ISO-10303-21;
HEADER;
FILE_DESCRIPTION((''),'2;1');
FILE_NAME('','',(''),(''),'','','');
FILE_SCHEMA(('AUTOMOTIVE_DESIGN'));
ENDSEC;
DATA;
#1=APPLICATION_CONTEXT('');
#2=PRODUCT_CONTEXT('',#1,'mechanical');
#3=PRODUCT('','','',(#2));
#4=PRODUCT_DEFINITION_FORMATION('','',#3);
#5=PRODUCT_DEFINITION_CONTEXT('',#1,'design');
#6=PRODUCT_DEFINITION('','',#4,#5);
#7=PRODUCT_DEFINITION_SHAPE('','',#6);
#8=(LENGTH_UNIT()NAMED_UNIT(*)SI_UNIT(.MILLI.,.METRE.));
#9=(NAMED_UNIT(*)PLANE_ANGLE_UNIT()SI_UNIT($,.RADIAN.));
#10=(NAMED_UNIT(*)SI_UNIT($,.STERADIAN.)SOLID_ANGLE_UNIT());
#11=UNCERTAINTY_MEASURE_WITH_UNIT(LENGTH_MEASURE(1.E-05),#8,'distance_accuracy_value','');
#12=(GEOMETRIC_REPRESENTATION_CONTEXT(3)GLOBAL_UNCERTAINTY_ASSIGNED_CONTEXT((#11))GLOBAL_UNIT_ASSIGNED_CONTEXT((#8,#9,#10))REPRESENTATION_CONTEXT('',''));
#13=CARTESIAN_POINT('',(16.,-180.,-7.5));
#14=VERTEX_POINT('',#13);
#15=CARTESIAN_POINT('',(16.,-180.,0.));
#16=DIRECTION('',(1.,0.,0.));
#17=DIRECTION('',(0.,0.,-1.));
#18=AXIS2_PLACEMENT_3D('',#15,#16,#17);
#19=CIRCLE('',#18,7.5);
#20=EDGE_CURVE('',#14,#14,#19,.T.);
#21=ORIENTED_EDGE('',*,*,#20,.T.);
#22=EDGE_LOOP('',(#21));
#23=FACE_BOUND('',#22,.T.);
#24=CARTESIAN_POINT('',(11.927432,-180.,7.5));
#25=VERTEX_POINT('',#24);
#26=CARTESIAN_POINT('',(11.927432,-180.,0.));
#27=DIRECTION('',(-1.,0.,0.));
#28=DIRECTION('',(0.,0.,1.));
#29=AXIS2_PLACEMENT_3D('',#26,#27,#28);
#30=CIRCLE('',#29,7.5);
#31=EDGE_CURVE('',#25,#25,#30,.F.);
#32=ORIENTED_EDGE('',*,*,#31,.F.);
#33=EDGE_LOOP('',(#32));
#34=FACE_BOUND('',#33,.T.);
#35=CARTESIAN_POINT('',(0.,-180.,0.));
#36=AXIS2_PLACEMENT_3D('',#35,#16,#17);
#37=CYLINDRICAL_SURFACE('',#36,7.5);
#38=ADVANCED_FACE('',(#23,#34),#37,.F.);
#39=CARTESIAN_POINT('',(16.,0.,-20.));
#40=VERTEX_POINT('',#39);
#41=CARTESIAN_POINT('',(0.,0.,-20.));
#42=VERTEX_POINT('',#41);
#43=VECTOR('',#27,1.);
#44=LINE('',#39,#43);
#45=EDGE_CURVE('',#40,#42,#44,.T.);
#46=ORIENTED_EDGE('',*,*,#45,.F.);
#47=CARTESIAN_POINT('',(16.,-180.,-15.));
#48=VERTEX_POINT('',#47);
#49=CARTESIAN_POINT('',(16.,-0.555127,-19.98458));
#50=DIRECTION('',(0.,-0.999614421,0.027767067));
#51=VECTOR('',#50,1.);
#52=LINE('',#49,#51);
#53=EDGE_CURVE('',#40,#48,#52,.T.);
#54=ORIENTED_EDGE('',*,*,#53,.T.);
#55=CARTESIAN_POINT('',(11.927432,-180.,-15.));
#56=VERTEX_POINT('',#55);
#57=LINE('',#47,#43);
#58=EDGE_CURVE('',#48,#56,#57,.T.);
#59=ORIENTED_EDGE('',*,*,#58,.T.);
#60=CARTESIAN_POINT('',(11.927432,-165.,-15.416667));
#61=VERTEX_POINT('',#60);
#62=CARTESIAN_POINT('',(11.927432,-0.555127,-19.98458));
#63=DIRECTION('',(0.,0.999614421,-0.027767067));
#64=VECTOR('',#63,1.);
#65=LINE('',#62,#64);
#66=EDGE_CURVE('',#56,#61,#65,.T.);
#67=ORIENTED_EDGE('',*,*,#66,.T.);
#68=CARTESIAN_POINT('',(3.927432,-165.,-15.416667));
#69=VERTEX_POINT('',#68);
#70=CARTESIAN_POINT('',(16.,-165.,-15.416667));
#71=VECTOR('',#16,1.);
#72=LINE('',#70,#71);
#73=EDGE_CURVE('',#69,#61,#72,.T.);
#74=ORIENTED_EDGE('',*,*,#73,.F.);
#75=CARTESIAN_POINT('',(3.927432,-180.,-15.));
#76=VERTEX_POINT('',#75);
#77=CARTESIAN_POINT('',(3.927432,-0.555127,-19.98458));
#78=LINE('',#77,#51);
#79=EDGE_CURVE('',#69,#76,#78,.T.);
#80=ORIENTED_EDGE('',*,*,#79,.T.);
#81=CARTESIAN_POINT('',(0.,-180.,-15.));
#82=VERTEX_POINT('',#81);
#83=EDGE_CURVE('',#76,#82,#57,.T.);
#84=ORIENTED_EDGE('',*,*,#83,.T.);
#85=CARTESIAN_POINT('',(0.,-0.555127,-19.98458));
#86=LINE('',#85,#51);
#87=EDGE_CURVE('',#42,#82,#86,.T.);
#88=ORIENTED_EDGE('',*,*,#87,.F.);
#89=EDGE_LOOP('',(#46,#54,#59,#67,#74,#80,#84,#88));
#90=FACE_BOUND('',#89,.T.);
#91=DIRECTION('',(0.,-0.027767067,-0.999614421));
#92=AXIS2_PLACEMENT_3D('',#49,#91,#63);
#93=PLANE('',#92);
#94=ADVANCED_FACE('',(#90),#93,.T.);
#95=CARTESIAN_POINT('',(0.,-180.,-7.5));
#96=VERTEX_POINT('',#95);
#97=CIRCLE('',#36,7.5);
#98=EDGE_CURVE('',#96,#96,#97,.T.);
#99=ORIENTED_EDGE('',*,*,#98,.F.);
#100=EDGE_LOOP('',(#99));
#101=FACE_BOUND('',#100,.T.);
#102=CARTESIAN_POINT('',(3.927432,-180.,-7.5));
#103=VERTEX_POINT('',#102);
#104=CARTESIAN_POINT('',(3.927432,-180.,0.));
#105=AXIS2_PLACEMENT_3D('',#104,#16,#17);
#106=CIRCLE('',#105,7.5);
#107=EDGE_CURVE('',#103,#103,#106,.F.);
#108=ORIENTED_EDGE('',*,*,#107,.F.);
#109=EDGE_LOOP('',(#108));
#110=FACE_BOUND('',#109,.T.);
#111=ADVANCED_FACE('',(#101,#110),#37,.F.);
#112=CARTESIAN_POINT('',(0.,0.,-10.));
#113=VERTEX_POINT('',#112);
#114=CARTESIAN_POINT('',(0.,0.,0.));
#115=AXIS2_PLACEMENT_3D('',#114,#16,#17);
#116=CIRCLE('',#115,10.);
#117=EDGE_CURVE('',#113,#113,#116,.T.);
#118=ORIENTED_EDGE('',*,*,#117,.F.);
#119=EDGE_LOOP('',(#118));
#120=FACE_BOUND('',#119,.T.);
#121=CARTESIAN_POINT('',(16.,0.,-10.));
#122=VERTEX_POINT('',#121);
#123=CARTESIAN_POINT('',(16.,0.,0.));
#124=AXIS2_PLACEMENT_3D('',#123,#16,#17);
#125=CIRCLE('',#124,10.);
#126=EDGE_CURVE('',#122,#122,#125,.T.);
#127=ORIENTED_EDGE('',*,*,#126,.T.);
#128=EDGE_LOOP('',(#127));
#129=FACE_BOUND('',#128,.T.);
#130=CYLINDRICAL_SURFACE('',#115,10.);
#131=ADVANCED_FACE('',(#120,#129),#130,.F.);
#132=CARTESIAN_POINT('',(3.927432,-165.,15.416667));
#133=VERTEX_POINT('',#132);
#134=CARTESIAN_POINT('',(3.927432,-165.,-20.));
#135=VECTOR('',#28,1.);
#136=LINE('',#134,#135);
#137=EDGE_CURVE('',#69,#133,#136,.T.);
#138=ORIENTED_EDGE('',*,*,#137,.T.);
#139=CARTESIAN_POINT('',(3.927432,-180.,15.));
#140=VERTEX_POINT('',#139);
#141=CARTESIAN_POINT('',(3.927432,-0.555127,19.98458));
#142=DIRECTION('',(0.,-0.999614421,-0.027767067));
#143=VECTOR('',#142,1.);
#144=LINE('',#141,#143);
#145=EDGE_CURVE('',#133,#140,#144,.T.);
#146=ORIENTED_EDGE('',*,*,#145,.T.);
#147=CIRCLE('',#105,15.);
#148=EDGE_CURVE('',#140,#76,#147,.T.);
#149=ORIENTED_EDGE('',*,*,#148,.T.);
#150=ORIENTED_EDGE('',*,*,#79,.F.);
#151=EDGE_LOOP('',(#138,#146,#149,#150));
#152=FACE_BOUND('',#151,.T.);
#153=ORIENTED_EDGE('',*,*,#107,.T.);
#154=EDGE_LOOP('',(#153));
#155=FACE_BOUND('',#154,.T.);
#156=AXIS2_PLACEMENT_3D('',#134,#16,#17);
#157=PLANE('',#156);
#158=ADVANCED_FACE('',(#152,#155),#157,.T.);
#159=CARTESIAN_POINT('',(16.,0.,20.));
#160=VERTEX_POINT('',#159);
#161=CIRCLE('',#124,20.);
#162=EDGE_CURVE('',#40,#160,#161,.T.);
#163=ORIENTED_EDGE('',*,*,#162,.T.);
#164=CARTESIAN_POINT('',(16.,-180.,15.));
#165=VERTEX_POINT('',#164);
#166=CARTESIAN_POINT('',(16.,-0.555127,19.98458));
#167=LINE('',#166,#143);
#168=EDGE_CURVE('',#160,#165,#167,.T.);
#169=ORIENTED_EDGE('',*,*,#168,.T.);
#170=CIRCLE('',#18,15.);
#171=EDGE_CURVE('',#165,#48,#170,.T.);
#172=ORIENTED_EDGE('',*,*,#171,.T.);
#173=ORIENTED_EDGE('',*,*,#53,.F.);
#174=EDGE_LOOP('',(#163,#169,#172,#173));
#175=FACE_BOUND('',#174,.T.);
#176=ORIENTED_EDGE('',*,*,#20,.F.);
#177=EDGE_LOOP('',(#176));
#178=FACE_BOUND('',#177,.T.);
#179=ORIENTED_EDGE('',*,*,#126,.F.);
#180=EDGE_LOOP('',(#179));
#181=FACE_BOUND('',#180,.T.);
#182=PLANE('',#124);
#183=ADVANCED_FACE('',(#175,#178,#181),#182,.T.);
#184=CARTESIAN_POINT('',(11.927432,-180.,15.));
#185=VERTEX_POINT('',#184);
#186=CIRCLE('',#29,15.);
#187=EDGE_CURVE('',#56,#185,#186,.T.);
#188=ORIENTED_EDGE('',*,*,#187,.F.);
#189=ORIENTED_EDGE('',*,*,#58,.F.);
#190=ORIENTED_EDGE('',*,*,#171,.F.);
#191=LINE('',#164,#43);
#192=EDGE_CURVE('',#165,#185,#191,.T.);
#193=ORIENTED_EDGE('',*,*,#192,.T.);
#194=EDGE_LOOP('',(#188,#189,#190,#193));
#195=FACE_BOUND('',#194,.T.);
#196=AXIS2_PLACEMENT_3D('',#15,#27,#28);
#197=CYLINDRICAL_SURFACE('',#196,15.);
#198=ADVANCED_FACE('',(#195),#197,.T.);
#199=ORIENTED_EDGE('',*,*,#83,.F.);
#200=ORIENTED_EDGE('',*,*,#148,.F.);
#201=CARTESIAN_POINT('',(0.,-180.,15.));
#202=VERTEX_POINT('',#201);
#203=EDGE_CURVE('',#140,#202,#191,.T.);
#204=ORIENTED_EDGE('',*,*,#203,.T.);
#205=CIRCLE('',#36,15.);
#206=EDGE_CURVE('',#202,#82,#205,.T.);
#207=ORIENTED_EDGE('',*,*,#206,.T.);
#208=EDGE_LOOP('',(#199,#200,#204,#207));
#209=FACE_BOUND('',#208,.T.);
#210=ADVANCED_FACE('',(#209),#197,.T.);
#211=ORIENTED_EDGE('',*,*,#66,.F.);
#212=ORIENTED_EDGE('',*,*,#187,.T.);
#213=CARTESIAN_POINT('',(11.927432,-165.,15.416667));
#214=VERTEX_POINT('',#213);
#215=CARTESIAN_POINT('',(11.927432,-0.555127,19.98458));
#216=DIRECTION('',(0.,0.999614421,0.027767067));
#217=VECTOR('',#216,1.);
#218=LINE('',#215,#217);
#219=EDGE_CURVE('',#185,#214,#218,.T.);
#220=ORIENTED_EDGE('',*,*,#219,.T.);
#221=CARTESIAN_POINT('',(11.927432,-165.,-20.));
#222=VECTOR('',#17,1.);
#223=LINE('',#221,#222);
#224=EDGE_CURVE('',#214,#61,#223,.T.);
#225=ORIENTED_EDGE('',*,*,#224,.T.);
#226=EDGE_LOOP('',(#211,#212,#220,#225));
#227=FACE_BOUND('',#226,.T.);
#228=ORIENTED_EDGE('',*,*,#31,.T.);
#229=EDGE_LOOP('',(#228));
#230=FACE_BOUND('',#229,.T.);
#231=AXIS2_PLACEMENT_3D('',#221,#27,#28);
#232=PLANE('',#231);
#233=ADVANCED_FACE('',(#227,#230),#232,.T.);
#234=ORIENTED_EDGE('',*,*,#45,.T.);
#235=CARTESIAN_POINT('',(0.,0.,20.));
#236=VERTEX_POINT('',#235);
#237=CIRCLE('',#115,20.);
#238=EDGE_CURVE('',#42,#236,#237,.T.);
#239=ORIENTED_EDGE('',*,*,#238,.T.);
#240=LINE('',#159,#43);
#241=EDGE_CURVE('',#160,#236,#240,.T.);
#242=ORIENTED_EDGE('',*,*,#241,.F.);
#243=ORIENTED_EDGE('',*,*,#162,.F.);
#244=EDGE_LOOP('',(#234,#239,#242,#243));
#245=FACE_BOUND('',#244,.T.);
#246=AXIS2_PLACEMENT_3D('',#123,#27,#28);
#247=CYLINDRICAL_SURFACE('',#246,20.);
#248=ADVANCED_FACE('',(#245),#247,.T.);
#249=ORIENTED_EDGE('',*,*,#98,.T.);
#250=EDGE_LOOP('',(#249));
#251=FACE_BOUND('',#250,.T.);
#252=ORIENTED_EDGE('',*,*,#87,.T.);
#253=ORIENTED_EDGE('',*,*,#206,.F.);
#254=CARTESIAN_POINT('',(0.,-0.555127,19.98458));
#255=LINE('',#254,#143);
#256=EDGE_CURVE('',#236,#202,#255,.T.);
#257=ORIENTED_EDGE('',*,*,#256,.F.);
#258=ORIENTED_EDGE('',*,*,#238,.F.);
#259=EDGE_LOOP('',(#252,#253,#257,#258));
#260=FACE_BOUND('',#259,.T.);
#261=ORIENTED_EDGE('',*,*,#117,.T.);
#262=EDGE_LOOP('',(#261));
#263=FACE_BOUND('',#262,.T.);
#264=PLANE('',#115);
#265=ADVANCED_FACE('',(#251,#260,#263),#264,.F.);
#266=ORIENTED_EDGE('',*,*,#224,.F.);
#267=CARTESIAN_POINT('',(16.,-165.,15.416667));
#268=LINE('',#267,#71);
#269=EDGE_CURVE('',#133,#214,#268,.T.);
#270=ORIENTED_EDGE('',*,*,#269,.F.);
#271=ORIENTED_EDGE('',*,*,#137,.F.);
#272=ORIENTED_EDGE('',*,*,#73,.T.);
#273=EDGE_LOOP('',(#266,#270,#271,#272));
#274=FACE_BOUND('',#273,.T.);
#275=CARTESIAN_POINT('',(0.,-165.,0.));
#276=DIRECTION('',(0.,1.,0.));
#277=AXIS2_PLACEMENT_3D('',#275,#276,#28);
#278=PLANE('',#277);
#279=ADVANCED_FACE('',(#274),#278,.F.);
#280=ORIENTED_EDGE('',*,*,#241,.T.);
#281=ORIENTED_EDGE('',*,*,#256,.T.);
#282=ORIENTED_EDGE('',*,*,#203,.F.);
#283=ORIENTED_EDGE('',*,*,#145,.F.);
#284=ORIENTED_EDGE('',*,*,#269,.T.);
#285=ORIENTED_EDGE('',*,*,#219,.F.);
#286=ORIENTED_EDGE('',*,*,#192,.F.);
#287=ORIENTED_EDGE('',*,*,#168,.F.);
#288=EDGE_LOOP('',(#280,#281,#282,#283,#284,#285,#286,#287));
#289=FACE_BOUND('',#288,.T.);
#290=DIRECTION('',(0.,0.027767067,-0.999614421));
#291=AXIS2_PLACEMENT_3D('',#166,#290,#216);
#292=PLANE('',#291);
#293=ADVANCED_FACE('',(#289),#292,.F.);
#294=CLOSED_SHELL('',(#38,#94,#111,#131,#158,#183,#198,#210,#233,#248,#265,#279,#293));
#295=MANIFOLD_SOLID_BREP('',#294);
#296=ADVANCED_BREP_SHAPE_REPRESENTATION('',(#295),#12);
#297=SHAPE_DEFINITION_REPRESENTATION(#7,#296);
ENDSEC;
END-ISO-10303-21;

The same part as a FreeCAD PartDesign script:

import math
import FreeCAD as App
import Part
import Sketcher
from FreeCAD import Vector
Q = App.Units.Quantity


def add_polygon(sketch, points):
    """Adds a closed chain of lines whose ends are joined by coincident constraints."""
    first, n = sketch.GeometryCount, len(points)
    for a, b in zip(points, points[1:] + points[:1]):
        sketch.addGeometry(Part.LineSegment(App.Vector(*a, 0), App.Vector(*b, 0)), False)
    for i in range(n):
        sketch.addConstraint(Sketcher.Constraint("Coincident", first + i, 2, first + (i + 1) % n, 1))

doc = App.newDocument("Part")
body = doc.addObject("PartDesign::Body", "Body")

sketch1 = doc.addObject("Sketcher::SketchObject", "Sketch")
body.addObject(sketch1)
sketch1.AttachmentSupport = (doc.YZ_Plane, [""])
sketch1.MapMode = "FlatFace"
sketch1.addGeometry([
    Part.ArcOfCircle(Part.Circle(Vector(0, 0, 0), Vector(0, 0, 1), 20), math.radians(-90), math.radians(90)),
    Part.LineSegment(Vector(0, 20, 0), Vector(-180, 15, 0)),
    Part.ArcOfCircle(Part.Circle(Vector(-180, 0, 0), Vector(0, 0, 1), 15), math.radians(90), math.radians(270)),
    Part.LineSegment(Vector(-180, -15, 0), Vector(0, -20, 0)),
], False)
sketch1.addConstraint([
    Sketcher.Constraint("Coincident", 0, 2, 1, 1),
    Sketcher.Constraint("Coincident", 1, 2, 2, 1),
    Sketcher.Constraint("Coincident", 2, 2, 3, 1),
    Sketcher.Constraint("Coincident", 3, 2, 0, 1),
    Sketcher.Constraint("Coincident", 0, 3, -1, 1),
    Sketcher.Constraint("Symmetric", 1, 2, 2, 2, -1),
    Sketcher.Constraint("PointOnObject", 0, 2, -2),
    Sketcher.Constraint("PointOnObject", 3, 2, -2),
    Sketcher.Constraint("Vertical", 2, 3, 1, 2),
    Sketcher.Constraint("Radius", 0, Q("20 mm")),
    Sketcher.Constraint("Radius", 2, Q("15 mm")),
    Sketcher.Constraint("DistanceX", 2, 3, -1, 1, Q("180 mm")),
])
pad1 = doc.addObject("PartDesign::Pad", "Pad")
body.addObject(pad1)
pad1.Profile = sketch1
pad1.Length = 16

sketch2 = doc.addObject("Sketcher::SketchObject", "Sketch001")
body.addObject(sketch2)
sketch2.AttachmentSupport = (doc.YZ_Plane, [""])
sketch2.MapMode = "FlatFace"
sketch2.AttachmentOffset = App.Placement(Vector(0, 0, 16), App.Rotation())
sketch2.addGeometry([
    Part.Circle(Vector(0, 0, 0), Vector(0, 0, 1), 10),
    Part.Circle(Vector(-180, 0, 0), Vector(0, 0, 1), 8),
], False)
sketch2.addConstraint([
    Sketcher.Constraint("Coincident", 0, 3, -1, 1),
    Sketcher.Constraint("PointOnObject", 1, 3, -1),
    Sketcher.Constraint("Diameter", 0, Q("20 mm")),
    Sketcher.Constraint("Diameter", 1, Q("15 mm")),
    Sketcher.Constraint("DistanceX", 1, 3, -1, 1, Q("180 mm")),
])
pocket1 = doc.addObject("PartDesign::Pocket", "Pocket")
body.addObject(pocket1)
pocket1.Profile = sketch2
pocket1.Length = 16

sketch3 = doc.addObject("Sketcher::SketchObject", "Sketch002")
body.addObject(sketch3)
sketch3.AttachmentSupport = (doc.XZ_Plane, [""])
sketch3.MapMode = "FlatFace"
sketch3.AttachmentOffset = App.Placement(Vector(0, 0, 230), App.Rotation())
add_polygon(sketch3, [(4, -20), (4, 20), (12, 20), (12, -20)])
sketch3.addConstraint([
    Sketcher.Constraint("Vertical", 0),
    Sketcher.Constraint("Horizontal", 1),
    Sketcher.Constraint("Vertical", 2),
    Sketcher.Constraint("Horizontal", 3),
    Sketcher.Constraint("DistanceX", 1, 1, 1, 2, Q("8 mm")),
    Sketcher.Constraint("DistanceY", 0, 1, 0, 2, Q("40 mm")),
    Sketcher.Constraint("DistanceY", -1, 1, 0, 2, Q("20 mm")),
    Sketcher.Constraint("DistanceX", -1, 1, 0, 2, Q("3.927432 mm")),
])
pocket2 = doc.addObject("PartDesign::Pocket", "Pocket001")
body.addObject(pocket2)
pocket2.Profile = sketch3
pocket2.Length = 65

doc.recompute()
